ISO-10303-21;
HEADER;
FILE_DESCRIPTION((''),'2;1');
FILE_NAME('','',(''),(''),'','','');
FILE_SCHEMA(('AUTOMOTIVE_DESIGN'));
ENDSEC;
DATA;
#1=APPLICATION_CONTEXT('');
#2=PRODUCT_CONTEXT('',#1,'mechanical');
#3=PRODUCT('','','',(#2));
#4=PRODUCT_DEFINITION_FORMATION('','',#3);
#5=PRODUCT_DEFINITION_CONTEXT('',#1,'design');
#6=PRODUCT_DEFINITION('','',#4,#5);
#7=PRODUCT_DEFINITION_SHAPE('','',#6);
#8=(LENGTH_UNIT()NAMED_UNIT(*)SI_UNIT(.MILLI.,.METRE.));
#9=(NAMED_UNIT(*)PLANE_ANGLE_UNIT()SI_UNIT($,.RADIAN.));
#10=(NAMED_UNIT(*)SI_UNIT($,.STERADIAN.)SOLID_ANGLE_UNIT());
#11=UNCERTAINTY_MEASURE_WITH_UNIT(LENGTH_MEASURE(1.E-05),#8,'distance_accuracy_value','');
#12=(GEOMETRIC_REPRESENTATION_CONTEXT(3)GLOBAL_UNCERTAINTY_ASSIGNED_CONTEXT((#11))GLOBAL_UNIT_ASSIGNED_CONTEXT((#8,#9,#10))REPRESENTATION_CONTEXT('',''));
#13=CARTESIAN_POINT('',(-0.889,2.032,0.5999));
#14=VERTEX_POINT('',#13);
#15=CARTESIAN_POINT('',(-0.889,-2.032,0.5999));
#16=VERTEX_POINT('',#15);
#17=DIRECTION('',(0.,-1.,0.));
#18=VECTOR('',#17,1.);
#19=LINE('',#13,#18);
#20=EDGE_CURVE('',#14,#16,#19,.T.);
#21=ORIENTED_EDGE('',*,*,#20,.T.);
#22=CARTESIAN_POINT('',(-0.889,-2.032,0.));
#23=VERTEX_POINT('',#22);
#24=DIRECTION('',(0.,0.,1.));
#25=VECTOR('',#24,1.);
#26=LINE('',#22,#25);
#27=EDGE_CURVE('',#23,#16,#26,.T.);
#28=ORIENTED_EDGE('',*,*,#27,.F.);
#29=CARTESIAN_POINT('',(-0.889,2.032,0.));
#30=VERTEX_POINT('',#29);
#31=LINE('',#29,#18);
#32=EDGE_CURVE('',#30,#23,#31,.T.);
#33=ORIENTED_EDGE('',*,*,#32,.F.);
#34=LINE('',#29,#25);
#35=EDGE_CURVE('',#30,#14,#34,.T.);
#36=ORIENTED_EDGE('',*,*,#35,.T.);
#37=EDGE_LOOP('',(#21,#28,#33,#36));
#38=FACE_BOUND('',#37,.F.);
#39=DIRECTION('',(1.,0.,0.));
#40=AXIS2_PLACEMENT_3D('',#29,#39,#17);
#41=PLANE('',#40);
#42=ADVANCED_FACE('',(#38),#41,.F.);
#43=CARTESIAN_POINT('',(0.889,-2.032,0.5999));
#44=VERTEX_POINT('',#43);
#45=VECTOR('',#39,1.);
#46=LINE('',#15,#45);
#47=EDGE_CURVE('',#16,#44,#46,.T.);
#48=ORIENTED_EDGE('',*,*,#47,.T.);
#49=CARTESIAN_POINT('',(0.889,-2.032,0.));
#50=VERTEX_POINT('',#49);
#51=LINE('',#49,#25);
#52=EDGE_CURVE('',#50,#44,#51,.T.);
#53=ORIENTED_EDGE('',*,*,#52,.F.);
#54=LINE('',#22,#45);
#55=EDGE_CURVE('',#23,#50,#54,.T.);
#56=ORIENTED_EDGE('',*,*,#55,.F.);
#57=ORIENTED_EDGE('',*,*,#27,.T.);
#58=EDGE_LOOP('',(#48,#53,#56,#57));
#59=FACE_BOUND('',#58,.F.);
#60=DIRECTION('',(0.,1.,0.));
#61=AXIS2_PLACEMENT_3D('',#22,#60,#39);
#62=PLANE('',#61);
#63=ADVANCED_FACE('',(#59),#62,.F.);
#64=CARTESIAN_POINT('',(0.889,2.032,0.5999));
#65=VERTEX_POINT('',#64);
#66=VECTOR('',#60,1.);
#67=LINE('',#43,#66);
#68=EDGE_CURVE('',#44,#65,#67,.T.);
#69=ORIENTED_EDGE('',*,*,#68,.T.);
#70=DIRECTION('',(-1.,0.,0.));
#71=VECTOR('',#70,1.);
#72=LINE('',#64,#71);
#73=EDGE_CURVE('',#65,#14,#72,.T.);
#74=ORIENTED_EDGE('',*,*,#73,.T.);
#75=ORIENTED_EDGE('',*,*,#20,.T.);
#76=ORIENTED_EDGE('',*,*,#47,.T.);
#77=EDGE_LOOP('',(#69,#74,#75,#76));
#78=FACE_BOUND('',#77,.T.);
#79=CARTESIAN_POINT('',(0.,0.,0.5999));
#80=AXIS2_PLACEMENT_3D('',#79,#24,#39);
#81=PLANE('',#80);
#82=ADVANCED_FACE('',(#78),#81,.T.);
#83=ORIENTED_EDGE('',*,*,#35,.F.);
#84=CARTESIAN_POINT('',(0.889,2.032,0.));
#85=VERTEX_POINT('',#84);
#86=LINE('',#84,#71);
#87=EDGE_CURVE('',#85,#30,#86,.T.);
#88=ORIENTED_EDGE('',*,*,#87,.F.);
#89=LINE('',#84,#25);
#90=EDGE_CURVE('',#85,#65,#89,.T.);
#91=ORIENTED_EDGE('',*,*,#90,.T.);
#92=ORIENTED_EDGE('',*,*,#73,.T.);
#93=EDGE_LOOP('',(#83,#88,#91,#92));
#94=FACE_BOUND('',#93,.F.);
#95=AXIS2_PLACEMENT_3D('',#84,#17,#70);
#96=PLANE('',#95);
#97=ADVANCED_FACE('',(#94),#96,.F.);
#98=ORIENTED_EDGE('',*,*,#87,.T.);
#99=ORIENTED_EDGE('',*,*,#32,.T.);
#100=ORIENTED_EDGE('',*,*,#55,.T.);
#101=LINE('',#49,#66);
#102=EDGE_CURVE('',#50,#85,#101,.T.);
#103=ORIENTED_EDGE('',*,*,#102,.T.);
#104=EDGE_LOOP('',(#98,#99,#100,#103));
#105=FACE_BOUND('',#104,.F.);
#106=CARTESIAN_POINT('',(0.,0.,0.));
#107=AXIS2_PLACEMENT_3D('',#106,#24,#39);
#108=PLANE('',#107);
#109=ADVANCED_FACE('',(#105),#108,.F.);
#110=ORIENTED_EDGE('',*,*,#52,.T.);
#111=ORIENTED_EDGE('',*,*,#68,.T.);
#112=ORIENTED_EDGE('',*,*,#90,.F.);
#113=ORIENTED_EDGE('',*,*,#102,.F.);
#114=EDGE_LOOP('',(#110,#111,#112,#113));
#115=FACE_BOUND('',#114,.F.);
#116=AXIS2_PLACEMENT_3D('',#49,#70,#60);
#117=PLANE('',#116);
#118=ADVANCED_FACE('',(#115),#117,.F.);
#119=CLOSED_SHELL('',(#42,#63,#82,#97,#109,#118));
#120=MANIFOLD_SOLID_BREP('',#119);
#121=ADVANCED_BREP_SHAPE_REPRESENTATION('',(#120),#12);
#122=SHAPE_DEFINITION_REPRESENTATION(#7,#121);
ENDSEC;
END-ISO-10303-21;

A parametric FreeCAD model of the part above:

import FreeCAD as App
import Part
import Sketcher
from FreeCAD import Vector
Q = App.Units.Quantity


def add_polygon(sketch, points):
    """Adds a closed chain of lines whose ends are joined by coincident constraints."""
    first, n = sketch.GeometryCount, len(points)
    for a, b in zip(points, points[1:] + points[:1]):
        sketch.addGeometry(Part.LineSegment(App.Vector(*a, 0), App.Vector(*b, 0)), False)
    for i in range(n):
        sketch.addConstraint(Sketcher.Constraint("Coincident", first + i, 2, first + (i + 1) % n, 1))

doc = App.newDocument("Part")
body = doc.addObject("PartDesign::Body", "Body")

# Sketch on XY plane
sketch1 = body.newObject("Sketcher::SketchObject", "Sketch")
sketch1.AttachmentSupport = (doc.getObject("XY_Plane"), [""])
sketch1.MapMode = "FlatFace"
add_polygon(sketch1, [(0.889, 2.032), (-0.889, 2.032), (-0.889, -2.032), (0.889, -2.032)])  # lines 0-3
sketch1.addConstraint([
    Sketcher.Constraint("Horizontal", 0),
    Sketcher.Constraint("Vertical", 1),
    Sketcher.Constraint("Horizontal", 2),
    Sketcher.Constraint("Vertical", 3),
    Sketcher.Constraint("Symmetric", 0, 2, 2, 2, -1, 1),
    Sketcher.Constraint("DistanceX", 0, 2, 0, 1, Q("0.07 in")),
    Sketcher.Constraint("DistanceY", 1, 2, 1, 1, Q("0.16 in")),
])
pad1 = body.newObject("PartDesign::Pad", "Pad")
pad1.Profile = sketch1
pad1.Length = 0.5999

doc.recompute()
